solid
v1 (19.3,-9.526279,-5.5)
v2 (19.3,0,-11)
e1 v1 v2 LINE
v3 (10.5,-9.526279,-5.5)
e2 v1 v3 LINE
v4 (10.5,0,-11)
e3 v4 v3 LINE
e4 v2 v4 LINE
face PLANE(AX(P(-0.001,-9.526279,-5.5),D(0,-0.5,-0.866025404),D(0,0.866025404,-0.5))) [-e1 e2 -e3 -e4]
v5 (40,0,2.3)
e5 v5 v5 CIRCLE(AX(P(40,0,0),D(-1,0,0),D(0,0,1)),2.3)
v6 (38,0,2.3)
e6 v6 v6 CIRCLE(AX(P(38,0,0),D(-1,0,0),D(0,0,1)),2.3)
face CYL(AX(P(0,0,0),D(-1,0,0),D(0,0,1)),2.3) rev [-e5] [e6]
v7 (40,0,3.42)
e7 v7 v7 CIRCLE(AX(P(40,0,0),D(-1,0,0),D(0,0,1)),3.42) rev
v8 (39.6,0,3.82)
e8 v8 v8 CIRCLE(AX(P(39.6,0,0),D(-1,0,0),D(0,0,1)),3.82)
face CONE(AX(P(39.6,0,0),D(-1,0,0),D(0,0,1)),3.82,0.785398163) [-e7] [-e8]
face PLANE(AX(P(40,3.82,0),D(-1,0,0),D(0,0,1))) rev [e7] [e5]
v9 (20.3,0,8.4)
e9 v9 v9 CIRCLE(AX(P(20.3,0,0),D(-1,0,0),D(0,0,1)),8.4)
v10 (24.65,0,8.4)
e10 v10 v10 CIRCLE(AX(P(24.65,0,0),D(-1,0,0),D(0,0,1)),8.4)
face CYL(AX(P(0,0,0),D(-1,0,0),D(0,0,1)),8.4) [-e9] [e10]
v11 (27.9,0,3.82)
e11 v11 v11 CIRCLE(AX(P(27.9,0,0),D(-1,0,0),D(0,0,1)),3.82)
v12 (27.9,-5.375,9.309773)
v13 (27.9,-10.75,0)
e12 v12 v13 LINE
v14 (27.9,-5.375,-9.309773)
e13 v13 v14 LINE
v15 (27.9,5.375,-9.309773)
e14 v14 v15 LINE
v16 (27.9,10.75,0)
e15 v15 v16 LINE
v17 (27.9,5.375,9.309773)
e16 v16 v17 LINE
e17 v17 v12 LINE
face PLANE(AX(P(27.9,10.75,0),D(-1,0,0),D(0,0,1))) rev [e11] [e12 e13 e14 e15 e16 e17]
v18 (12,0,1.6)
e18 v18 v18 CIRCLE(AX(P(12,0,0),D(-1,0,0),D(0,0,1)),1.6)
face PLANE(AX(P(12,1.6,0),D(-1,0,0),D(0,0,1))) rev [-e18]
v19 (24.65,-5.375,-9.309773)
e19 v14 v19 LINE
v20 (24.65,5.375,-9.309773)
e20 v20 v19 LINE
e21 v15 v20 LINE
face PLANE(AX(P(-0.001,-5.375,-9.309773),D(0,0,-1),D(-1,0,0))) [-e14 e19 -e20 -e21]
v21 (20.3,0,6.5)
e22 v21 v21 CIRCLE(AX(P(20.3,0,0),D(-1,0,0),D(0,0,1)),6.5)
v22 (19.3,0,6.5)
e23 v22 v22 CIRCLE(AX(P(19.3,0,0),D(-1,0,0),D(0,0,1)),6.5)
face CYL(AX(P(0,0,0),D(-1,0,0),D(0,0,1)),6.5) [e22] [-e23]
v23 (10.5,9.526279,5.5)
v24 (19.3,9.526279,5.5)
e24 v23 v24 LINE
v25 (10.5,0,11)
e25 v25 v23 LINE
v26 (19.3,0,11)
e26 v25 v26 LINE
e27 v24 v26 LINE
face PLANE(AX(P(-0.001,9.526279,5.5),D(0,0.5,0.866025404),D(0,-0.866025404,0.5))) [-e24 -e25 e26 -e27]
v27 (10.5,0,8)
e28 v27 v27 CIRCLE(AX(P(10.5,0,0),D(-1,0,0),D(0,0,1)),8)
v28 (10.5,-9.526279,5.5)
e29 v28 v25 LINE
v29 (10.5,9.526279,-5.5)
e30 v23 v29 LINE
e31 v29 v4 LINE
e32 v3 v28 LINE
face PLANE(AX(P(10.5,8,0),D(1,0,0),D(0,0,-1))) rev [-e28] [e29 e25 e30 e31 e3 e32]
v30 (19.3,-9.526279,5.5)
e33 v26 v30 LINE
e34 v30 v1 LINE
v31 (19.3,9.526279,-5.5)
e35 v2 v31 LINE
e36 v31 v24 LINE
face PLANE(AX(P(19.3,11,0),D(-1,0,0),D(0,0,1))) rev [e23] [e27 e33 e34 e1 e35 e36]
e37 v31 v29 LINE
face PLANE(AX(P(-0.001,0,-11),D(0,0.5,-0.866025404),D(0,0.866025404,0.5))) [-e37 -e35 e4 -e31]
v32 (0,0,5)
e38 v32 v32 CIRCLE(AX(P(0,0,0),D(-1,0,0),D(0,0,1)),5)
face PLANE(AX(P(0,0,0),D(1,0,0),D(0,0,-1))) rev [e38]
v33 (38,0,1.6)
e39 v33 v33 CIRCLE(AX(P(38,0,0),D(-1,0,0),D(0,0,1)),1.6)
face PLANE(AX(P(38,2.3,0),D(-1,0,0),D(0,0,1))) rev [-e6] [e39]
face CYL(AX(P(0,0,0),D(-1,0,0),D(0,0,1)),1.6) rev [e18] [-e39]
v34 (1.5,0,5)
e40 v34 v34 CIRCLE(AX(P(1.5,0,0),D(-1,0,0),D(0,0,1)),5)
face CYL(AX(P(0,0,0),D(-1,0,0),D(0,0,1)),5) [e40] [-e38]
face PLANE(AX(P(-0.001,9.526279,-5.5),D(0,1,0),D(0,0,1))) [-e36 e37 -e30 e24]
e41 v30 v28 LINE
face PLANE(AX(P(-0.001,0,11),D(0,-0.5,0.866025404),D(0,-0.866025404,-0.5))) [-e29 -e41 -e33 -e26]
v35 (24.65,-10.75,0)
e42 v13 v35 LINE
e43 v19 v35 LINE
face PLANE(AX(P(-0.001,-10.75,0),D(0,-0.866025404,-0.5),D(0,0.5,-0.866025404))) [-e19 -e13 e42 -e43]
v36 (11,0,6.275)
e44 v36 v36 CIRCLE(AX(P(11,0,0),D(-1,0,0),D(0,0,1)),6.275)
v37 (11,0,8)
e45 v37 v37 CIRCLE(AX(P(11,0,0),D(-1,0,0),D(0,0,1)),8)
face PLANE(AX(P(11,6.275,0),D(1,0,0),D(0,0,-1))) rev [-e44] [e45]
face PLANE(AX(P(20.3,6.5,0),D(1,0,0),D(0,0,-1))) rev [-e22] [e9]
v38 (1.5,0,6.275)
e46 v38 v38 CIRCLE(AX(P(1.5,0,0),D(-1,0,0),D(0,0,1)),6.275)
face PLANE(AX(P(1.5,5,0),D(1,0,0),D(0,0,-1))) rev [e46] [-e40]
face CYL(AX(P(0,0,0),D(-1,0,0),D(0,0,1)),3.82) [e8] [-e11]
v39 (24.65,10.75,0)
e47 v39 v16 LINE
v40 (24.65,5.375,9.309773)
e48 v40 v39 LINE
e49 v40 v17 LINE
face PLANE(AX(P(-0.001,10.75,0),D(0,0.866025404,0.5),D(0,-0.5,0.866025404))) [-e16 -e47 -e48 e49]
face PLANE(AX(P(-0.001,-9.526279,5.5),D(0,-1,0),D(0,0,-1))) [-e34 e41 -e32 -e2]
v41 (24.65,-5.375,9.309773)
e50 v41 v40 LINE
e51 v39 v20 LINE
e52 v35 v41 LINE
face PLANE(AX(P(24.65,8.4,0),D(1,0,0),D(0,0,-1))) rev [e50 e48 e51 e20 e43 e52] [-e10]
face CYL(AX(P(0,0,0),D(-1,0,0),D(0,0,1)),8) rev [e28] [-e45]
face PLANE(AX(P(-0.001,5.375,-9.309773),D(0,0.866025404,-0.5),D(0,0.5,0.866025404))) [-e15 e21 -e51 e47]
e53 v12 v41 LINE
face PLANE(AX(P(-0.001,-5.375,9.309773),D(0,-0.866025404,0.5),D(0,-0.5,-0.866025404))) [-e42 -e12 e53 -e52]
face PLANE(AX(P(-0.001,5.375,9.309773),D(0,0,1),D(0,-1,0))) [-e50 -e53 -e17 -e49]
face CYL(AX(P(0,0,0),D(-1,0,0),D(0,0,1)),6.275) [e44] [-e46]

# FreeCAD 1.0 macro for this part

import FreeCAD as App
import Part
import Sketcher
from FreeCAD import Vector
Q = App.Units.Quantity


def edges_at(feature, points):
    """Names of the edges that pass closest to the given points."""
    edges = feature.Shape.Edges
    near = lambda p: min(range(len(edges)), key=lambda i: edges[i].distToShape(Part.Vertex(*p))[0])
    return sorted({f"Edge{near(p) + 1}" for p in points})

doc = App.newDocument("Part")
body = doc.addObject("PartDesign::Body", "Body")

sketch1 = body.newObject("Sketcher::SketchObject", "Sketch")
sketch1.AttachmentSupport = (doc.getObject("XY_Plane"), [""])
sketch1.MapMode = "FlatFace"
sketch1.addGeometry([
    Part.LineSegment(Vector(0, 5, 0), Vector(0, 0, 0)),
    Part.LineSegment(Vector(0, 0, 0), Vector(12, 0, 0)),
    Part.LineSegment(Vector(12, 0, 0), Vector(12, 1.6, 0)),
    Part.LineSegment(Vector(12, 1.6, 0), Vector(38, 1.6, 0)),
    Part.LineSegment(Vector(38, 1.6, 0), Vector(38, 2.3, 0)),
    Part.LineSegment(Vector(38, 2.3, 0), Vector(40, 2.3, 0)),
    Part.LineSegment(Vector(40, 2.3, 0), Vector(40, 3.8, 0)),
    Part.LineSegment(Vector(40, 3.8, 0), Vector(27.9, 3.8, 0)),
    Part.LineSegment(Vector(27.9, 3.8, 0), Vector(27.9, 10.8, 0)),
    Part.LineSegment(Vector(27.9, 10.8, 0), Vector(24.6, 10.8, 0)),
    Part.LineSegment(Vector(24.6, 10.8, 0), Vector(24.6, 8.4, 0)),
    Part.LineSegment(Vector(24.6, 8.4, 0), Vector(20.3, 8.4, 0)),
    Part.LineSegment(Vector(20.3, 8.4, 0), Vector(20.3, 6.5, 0)),
    Part.LineSegment(Vector(20.3, 6.5, 0), Vector(19.3, 6.5, 0)),
    Part.LineSegment(Vector(19.3, 6.5, 0), Vector(19.3, 11, 0)),
    Part.LineSegment(Vector(19.3, 11, 0), Vector(10.5, 11, 0)),
    Part.LineSegment(Vector(10.5, 11, 0), Vector(10.5, 8, 0)),
    Part.LineSegment(Vector(10.5, 8, 0), Vector(11, 8, 0)),
    Part.LineSegment(Vector(11, 8, 0), Vector(11, 6.3, 0)),
    Part.LineSegment(Vector(11, 6.3, 0), Vector(1.5, 6.3, 0)),
    Part.LineSegment(Vector(1.5, 6.3, 0), Vector(1.5, 5, 0)),
    Part.LineSegment(Vector(1.5, 5, 0), Vector(0, 5, 0)),
], False)
sketch1.addConstraint([
    Sketcher.Constraint("Coincident", 0, 2, 1, 1),
    Sketcher.Constraint("Coincident", 1, 2, 2, 1),
    Sketcher.Constraint("Coincident", 2, 2, 3, 1),
    Sketcher.Constraint("Coincident", 3, 2, 4, 1),
    Sketcher.Constraint("Coincident", 4, 2, 5, 1),
    Sketcher.Constraint("Coincident", 5, 2, 6, 1),
    Sketcher.Constraint("Coincident", 6, 2, 7, 1),
    Sketcher.Constraint("Coincident", 7, 2, 8, 1),
    Sketcher.Constraint("Coincident", 8, 2, 9, 1),
    Sketcher.Constraint("Coincident", 9, 2, 10, 1),
    Sketcher.Constraint("Coincident", 10, 2, 11, 1),
    Sketcher.Constraint("Coincident", 11, 2, 12, 1),
    Sketcher.Constraint("Coincident", 12, 2, 13, 1),
    Sketcher.Constraint("Coincident", 13, 2, 14, 1),
    Sketcher.Constraint("Coincident", 14, 2, 15, 1),
    Sketcher.Constraint("Coincident", 15, 2, 16, 1),
    Sketcher.Constraint("Coincident", 16, 2, 17, 1),
    Sketcher.Constraint("Coincident", 17, 2, 18, 1),
    Sketcher.Constraint("Coincident", 18, 2, 19, 1),
    Sketcher.Constraint("Coincident", 19, 2, 20, 1),
    Sketcher.Constraint("Coincident", 20, 2, 21, 1),
    Sketcher.Constraint("Coincident", 21, 2, 0, 1),
    Sketcher.Constraint("Vertical", 0),
    Sketcher.Constraint("Horizontal", 1),
    Sketcher.Constraint("Vertical", 2),
    Sketcher.Constraint("Horizontal", 3),
    Sketcher.Constraint("Vertical", 4),
    Sketcher.Constraint("Horizontal", 5),
    Sketcher.Constraint("Vertical", 6),
    Sketcher.Constraint("Horizontal", 7),
    Sketcher.Constraint("Vertical", 8),
    Sketcher.Constraint("Horizontal", 9),
    Sketcher.Constraint("Vertical", 10),
    Sketcher.Constraint("Horizontal", 11),
    Sketcher.Constraint("Vertical", 12),
    Sketcher.Constraint("Horizontal", 13),
    Sketcher.Constraint("Vertical", 14),
    Sketcher.Constraint("Horizontal", 15),
    Sketcher.Constraint("Vertical", 16),
    Sketcher.Constraint("Horizontal", 17),
    Sketcher.Constraint("Vertical", 18),
    Sketcher.Constraint("Horizontal", 19),
    Sketcher.Constraint("Vertical", 20),
    Sketcher.Constraint("Horizontal", 21),
    Sketcher.Constraint("Coincident", 0, 2, -1, 1),
    Sketcher.Constraint("DistanceX", 1, 1, 1, 2, 12.0),
    Sketcher.Constraint("DistanceX", 3, 1, 3, 2, 26.0),
    Sketcher.Constraint("DistanceX", 5, 1, 5, 2, 2.0),
    Sketcher.Constraint("DistanceX", 13, 2, 13, 1, 1.0),
    Sketcher.Constraint("DistanceY", 0, 2, 0, 1, 5.0),
    Sketcher.Constraint("DistanceY", 16, 2, 16, 1, 3.0),
    Sketcher.Constraint("DistanceX", 7, 2, 7, 1, 12.1),
    Sketcher.Constraint("DistanceX", 15, 2, 15, 1, 8.8),
    Sketcher.Constraint("DistanceX", 17, 1, 17, 2, 0.5),
    Sketcher.Constraint("DistanceX", 19, 2, 19, 1, 9.5),
    Sketcher.Constraint("DistanceX", 21, 2, 21, 1, 1.5),
    Sketcher.Constraint("DistanceY", 2, 1, 2, 2, 1.6),
    Sketcher.Constraint("DistanceY", 4, 1, 4, 2, 0.7),
    Sketcher.Constraint("DistanceY", 12, 2, 12, 1, 1.9),
    Sketcher.Constraint("DistanceY", 14, 1, 14, 2, 4.5),
    Sketcher.Constraint("DistanceY", -1, 1, 14, 2, 11.0),
    Sketcher.Constraint("DistanceX", 9, 2, 9, 1, 3.25),
    Sketcher.Constraint("DistanceY", 6, 1, 6, 2, 1.52),
    Sketcher.Constraint("DistanceY", 8, 1, 8, 2, 6.93),
    Sketcher.Constraint("DistanceY", 18, 2, 18, 1, 1.725),
])
revolution = body.newObject("PartDesign::Revolution", "Revolution")
revolution.Profile = sketch1
revolution.ReferenceAxis = (sketch1, ["H_Axis"])
revolution.Angle = 360
doc.recompute()

chamfer = body.newObject("PartDesign::Chamfer", "Chamfer")
chamfer.Base = (revolution, edges_at(revolution, [(40, 0, -3.82)]))
chamfer.Size = 0.4

sketch2 = body.newObject("Sketcher::SketchObject", "Sketch001")
sketch2.AttachmentSupport = (doc.getObject("YZ_Plane"), [""])
sketch2.MapMode = "FlatFace"
sketch2.AttachmentOffset = App.Placement(Vector(0, 0, 24.65), App.Rotation())
sketch2.addGeometry([
    Part.Circle(Vector(0, 0, 0), Vector(0, 0, 1), 12),
    Part.LineSegment(Vector(5, 9, 0), Vector(11, 0, 0)),
    Part.LineSegment(Vector(11, 0, 0), Vector(5, -9, 0)),
    Part.LineSegment(Vector(5, -9, 0), Vector(-5, -9, 0)),
    Part.LineSegment(Vector(-5, -9, 0), Vector(-11, 0, 0)),
    Part.LineSegment(Vector(-11, 0, 0), Vector(-5, 9, 0)),
    Part.LineSegment(Vector(-5, 9, 0), Vector(5, 9, 0)),
], False)
sketch2.addConstraint([
    Sketcher.Constraint("Coincident", 1, 2, 2, 1),
    Sketcher.Constraint("Coincident", 2, 2, 3, 1),
    Sketcher.Constraint("Coincident", 3, 2, 4, 1),
    Sketcher.Constraint("Coincident", 4, 2, 5, 1),
    Sketcher.Constraint("Coincident", 5, 2, 6, 1),
    Sketcher.Constraint("Coincident", 6, 2, 1, 1),
    Sketcher.Constraint("Horizontal", 3),
    Sketcher.Constraint("Horizontal", 6),
    Sketcher.Constraint("Coincident", 0, 3, -1, 1),
    Sketcher.Constraint("Symmetric", 1, 2, 4, 2, -1, 1),
    Sketcher.Constraint("Symmetric", 2, 2, 5, 2, -1, 1),
    Sketcher.Constraint("PointOnObject", 1, 2, -1),
    Sketcher.Constraint("Parallel", 1, 4),
    Sketcher.Constraint("Vertical", 3, 2, 5, 2),
    Sketcher.Constraint("Angle", 1, Q("-60 deg")),
    Sketcher.Constraint("DistanceX", 3, 2, 3, 1, 10.75),
    Sketcher.Constraint("DistanceX", 4, 2, 1, 2, 21.5),
    Sketcher.Constraint("Diameter", 0, 23.851488),
])
pocket1 = body.newObject("PartDesign::Pocket", "Pocket")
pocket1.Profile = sketch2
pocket1.Length = 3.25
pocket1.Reversed = True

sketch3 = body.newObject("Sketcher::SketchObject", "Sketch002")
sketch3.AttachmentSupport = (doc.getObject("YZ_Plane"), [""])
sketch3.MapMode = "FlatFace"
sketch3.AttachmentOffset = App.Placement(Vector(0, 0, 10.5), App.Rotation())
sketch3.addGeometry([
    Part.Circle(Vector(0, 0, 0), Vector(0, 0, 1), 13),
    Part.LineSegment(Vector(0, 11, 0), Vector(10, 6, 0)),
    Part.LineSegment(Vector(10, 6, 0), Vector(10, -6, 0)),
    Part.LineSegment(Vector(10, -6, 0), Vector(0, -11, 0)),
    Part.LineSegment(Vector(0, -11, 0), Vector(-10, -6, 0)),
    Part.LineSegment(Vector(-10, -6, 0), Vector(-10, 6, 0)),
    Part.LineSegment(Vector(-10, 6, 0), Vector(0, 11, 0)),
], False)
sketch3.addConstraint([
    Sketcher.Constraint("Coincident", 1, 2, 2, 1),
    Sketcher.Constraint("Coincident", 2, 2, 3, 1),
    Sketcher.Constraint("Coincident", 3, 2, 4, 1),
    Sketcher.Constraint("Coincident", 4, 2, 5, 1),
    Sketcher.Constraint("Coincident", 5, 2, 6, 1),
    Sketcher.Constraint("Coincident", 6, 2, 1, 1),
    Sketcher.Constraint("Vertical", 2),
    Sketcher.Constraint("Vertical", 5),
    Sketcher.Constraint("Coincident", 0, 3, -1, 1),
    Sketcher.Constraint("Symmetric", 1, 2, 4, 2, -1, 1),
    Sketcher.Constraint("Symmetric", 3, 2, 6, 2, -1, 1),
    Sketcher.Constraint("PointOnObject", 3, 2, -2),
    Sketcher.Constraint("Parallel", 3, 6),
    Sketcher.Constraint("Horizontal", 2, 2, 4, 2),
    Sketcher.Constraint("DistanceY", 2, 2, 2, 1, 11.0),
    Sketcher.Constraint("Angle", 1, Q("-30 deg")),
    Sketcher.Constraint("Distance", 1, 11.0),
    Sketcher.Constraint("Diameter", 0, 26.982345),
])
pocket2 = body.newObject("PartDesign::Pocket", "Pocket001")
pocket2.Profile = sketch3
pocket2.Length = 8.8
pocket2.Reversed = True

doc.recompute()
